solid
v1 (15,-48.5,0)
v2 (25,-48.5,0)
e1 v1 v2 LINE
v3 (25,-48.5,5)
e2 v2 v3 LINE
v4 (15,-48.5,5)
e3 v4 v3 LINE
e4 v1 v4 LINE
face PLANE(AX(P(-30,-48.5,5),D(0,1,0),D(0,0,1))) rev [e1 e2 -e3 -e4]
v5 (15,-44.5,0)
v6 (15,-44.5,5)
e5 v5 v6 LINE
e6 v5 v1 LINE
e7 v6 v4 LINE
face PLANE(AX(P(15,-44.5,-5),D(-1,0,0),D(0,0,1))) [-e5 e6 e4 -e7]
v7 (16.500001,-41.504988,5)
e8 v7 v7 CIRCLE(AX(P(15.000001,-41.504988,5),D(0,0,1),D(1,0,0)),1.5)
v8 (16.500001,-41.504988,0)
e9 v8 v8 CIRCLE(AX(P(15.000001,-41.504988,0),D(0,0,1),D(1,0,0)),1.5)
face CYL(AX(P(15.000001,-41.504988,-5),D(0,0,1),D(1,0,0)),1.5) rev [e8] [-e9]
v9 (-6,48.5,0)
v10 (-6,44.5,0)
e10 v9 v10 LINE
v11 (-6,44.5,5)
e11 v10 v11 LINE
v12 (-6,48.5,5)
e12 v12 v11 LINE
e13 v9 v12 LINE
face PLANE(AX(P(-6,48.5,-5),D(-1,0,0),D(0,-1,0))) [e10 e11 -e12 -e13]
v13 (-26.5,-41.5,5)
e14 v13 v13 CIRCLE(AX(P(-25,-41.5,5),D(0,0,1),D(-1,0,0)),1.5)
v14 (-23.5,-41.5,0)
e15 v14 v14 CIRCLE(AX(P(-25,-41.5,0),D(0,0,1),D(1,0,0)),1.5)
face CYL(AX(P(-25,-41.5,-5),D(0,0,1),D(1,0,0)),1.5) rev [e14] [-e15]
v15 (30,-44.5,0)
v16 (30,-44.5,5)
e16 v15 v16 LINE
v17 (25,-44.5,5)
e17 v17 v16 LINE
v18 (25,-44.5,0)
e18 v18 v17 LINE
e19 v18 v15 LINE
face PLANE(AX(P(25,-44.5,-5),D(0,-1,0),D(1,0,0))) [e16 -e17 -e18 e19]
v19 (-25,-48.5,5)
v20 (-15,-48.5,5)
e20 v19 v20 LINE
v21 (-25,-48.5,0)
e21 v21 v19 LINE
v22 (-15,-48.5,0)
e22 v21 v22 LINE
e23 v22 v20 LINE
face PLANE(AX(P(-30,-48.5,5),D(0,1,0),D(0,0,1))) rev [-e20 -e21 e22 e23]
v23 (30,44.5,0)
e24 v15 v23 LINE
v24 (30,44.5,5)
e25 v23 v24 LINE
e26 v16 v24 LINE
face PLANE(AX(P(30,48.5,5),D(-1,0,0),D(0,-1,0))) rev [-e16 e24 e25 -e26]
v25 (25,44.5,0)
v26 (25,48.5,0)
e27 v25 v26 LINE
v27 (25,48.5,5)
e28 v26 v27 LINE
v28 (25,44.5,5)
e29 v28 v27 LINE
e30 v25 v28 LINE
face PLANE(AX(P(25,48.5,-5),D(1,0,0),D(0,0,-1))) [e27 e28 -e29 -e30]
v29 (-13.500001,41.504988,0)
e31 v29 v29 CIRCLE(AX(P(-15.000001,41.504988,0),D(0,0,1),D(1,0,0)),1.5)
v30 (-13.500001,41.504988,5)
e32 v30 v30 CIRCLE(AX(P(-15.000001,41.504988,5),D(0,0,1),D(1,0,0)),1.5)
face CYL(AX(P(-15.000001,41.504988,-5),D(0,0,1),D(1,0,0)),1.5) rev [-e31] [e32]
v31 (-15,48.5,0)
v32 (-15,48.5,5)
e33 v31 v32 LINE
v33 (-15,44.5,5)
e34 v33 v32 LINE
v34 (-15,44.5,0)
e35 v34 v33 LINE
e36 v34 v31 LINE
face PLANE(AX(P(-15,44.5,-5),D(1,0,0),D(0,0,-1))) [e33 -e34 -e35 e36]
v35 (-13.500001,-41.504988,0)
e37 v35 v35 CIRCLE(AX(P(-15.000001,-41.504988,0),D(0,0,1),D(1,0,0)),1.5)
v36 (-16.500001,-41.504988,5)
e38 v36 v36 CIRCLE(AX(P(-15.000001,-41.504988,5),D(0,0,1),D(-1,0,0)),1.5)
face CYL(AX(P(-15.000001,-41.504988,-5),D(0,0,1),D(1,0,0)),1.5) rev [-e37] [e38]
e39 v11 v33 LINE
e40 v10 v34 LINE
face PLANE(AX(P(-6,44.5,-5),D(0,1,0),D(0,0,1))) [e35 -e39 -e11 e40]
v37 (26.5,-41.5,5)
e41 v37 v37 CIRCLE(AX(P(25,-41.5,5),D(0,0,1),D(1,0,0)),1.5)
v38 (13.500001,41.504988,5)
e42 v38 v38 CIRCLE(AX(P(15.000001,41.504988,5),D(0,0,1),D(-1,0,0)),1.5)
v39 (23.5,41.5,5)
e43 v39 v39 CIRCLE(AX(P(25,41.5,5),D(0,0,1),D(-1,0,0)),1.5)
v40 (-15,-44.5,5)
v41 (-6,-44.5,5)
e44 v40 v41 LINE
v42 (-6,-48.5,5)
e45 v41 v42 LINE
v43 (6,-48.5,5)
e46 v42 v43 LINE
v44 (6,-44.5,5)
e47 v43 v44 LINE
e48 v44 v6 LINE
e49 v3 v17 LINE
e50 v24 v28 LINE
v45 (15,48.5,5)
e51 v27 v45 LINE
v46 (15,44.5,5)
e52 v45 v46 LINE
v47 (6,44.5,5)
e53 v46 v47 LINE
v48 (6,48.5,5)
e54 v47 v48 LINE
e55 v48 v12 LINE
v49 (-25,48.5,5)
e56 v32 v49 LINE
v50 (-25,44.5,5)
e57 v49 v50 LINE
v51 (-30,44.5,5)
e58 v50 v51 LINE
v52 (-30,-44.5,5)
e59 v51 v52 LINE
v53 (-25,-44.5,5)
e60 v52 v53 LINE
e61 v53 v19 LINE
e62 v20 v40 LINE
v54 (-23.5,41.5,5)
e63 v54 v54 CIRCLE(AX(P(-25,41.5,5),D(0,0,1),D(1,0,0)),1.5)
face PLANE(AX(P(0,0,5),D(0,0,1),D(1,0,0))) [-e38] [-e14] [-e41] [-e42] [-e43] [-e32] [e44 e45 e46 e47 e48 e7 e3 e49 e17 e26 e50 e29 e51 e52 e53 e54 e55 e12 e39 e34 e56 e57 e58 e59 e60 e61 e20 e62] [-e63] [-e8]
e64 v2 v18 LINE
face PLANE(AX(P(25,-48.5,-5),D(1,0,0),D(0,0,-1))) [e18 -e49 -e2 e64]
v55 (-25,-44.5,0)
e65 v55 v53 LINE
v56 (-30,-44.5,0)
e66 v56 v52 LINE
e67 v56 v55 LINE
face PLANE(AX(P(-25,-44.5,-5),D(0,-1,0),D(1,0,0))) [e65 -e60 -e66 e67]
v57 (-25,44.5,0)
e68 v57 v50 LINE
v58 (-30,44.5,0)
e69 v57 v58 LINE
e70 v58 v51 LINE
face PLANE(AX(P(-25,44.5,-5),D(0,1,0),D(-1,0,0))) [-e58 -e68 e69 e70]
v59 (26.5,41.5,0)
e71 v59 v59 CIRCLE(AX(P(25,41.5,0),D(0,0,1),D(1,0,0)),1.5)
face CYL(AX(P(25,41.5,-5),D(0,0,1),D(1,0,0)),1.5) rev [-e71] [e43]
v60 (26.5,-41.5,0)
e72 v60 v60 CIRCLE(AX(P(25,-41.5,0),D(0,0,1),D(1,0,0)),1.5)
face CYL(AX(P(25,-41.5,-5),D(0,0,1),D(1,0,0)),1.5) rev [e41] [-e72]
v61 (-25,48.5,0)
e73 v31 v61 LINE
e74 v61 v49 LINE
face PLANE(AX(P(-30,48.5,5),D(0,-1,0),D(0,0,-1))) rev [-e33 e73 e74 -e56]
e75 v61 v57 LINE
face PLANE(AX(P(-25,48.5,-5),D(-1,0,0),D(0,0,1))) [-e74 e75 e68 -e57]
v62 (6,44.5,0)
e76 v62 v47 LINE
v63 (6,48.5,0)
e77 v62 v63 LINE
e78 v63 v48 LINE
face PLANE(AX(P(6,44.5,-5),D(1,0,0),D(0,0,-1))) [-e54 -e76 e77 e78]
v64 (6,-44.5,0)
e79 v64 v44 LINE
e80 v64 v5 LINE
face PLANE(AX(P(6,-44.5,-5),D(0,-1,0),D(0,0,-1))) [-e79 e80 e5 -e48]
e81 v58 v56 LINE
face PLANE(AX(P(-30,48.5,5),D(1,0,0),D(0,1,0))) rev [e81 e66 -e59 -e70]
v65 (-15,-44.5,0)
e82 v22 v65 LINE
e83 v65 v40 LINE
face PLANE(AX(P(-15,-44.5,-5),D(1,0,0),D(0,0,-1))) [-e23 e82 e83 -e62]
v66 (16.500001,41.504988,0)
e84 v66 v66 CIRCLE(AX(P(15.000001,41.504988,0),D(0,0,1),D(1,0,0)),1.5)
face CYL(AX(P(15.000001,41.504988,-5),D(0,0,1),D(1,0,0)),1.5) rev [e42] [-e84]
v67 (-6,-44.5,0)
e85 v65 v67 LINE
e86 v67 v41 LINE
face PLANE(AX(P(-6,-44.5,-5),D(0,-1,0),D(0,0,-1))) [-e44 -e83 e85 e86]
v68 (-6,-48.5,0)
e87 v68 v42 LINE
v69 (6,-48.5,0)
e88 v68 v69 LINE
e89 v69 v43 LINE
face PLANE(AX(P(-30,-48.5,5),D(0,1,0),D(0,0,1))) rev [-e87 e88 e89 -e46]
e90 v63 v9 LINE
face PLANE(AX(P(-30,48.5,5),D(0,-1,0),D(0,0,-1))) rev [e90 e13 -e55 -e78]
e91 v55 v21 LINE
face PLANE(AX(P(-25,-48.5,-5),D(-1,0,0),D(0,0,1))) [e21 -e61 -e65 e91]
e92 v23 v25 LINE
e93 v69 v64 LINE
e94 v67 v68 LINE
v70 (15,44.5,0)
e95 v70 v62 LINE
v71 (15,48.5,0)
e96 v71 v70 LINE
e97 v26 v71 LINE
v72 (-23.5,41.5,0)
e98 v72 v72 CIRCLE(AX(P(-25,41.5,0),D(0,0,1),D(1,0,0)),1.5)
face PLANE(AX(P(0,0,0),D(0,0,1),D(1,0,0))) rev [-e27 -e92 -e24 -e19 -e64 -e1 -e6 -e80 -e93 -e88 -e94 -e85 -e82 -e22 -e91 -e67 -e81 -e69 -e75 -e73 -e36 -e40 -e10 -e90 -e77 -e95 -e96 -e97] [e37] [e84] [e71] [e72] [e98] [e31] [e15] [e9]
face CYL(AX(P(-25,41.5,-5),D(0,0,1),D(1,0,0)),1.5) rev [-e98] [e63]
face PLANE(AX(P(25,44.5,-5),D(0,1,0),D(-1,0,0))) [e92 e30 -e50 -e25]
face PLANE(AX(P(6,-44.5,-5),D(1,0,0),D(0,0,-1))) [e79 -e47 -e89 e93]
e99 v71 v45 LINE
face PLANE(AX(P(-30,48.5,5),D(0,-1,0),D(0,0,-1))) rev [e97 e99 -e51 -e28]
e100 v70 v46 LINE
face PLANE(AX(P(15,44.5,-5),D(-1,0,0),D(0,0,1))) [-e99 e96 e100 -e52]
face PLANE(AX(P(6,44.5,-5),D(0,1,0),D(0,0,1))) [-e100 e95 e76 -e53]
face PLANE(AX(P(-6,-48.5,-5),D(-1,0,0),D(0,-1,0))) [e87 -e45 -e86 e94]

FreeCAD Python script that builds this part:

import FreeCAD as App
import Part
import Sketcher
from FreeCAD import Vector

doc = App.newDocument("Part")
params = doc.addObject("Spreadsheet::Sheet", "Params")
for row, (alias, value) in enumerate([
    ("sketch1_width", "60 mm"),
    ("sketch1_height", "97 mm"),
    ("pad1_length", "5 mm"),
    ("sketch2_width", "12 mm"),
    ("sketch2_width2", "9 mm"),
    ("sketch2_width3", "10 mm"),
    ("sketch2_width4", "5 mm"),
    ("sketch2_height", "4 mm"),
    ("pocket1_length", "10 mm"),
    ("sketch3_diameter", "3 mm"),
    ("pocket2_length", "10 mm"),
], start=1):
    params.set(f"A{row}", alias)
    params.set(f"B{row}", "=" + value)
    params.setAlias(f"B{row}", alias)

body = doc.addObject("PartDesign::Body", "Body")

sketch1 = body.newObject("Sketcher::SketchObject", "Sketch")
sketch1.AttachmentSupport = (doc.getObject("XY_Plane"), [""])
sketch1.MapMode = "FlatFace"
sketch1.addGeometry([
    Part.LineSegment(Vector(-30, 48.5, 0), Vector(-30, -48.5, 0)),
    Part.LineSegment(Vector(-30, -48.5, 0), Vector(30, -48.5, 0)),
    Part.LineSegment(Vector(30, -48.5, 0), Vector(30, 48.5, 0)),
    Part.LineSegment(Vector(30, 48.5, 0), Vector(-30, 48.5, 0)),
], False)
sketch1.addConstraint([
    Sketcher.Constraint("Coincident", 0, 2, 1, 1),
    Sketcher.Constraint("Coincident", 1, 2, 2, 1),
    Sketcher.Constraint("Coincident", 2, 2, 3, 1),
    Sketcher.Constraint("Coincident", 3, 2, 0, 1),
    Sketcher.Constraint("Vertical", 0),
    Sketcher.Constraint("Horizontal", 1),
    Sketcher.Constraint("Vertical", 2),
    Sketcher.Constraint("Horizontal", 3),
    Sketcher.Constraint("Symmetric", 0, 2, 2, 2, -1, 1),
    Sketcher.Constraint("DistanceX", 1, 1, 1, 2, 60.0),
    Sketcher.Constraint("DistanceY", 0, 2, 0, 1, 97.0),
])
sketch1.setExpression("Constraints[9]", "Params.sketch1_width")
sketch1.setExpression("Constraints[10]", "Params.sketch1_height")
pad1 = body.newObject("PartDesign::Pad", "Pad")
pad1.Profile = sketch1
pad1.setExpression("Length", "Params.pad1_length")

sketch2 = body.newObject("Sketcher::SketchObject", "Sketch001")
sketch2.AttachmentSupport = (doc.getObject("XY_Plane"), [""])
sketch2.MapMode = "FlatFace"
sketch2.AttachmentOffset = App.Placement(Vector(0, 0, 5), App.Rotation())
sketch2.addGeometry([
    Part.LineSegment(Vector(-42.417, 60.917, 0), Vector(-42.417, -60.917, 0)),
    Part.LineSegment(Vector(-42.417, -60.917, 0), Vector(42.417, -60.917, 0)),
    Part.LineSegment(Vector(42.417, -60.917, 0), Vector(42.417, 60.917, 0)),
    Part.LineSegment(Vector(42.417, 60.917, 0), Vector(-42.417, 60.917, 0)),
    Part.LineSegment(Vector(-6, 48.5, 0), Vector(6, 48.5, 0)),
    Part.LineSegment(Vector(6, 48.5, 0), Vector(6, 44.5, 0)),
    Part.LineSegment(Vector(6, 44.5, 0), Vector(15, 44.5, 0)),
    Part.LineSegment(Vector(15, 44.5, 0), Vector(15, 48.5, 0)),
    Part.LineSegment(Vector(15, 48.5, 0), Vector(25, 48.5, 0)),
    Part.LineSegment(Vector(25, 48.5, 0), Vector(25, 44.5, 0)),
    Part.LineSegment(Vector(25, 44.5, 0), Vector(30, 44.5, 0)),
    Part.LineSegment(Vector(30, 44.5, 0), Vector(30, -44.5, 0)),
    Part.LineSegment(Vector(30, -44.5, 0), Vector(25, -44.5, 0)),
    Part.LineSegment(Vector(25, -44.5, 0), Vector(25, -48.5, 0)),
    Part.LineSegment(Vector(25, -48.5, 0), Vector(15, -48.5, 0)),
    Part.LineSegment(Vector(15, -48.5, 0), Vector(15, -44.5, 0)),
    Part.LineSegment(Vector(15, -44.5, 0), Vector(6, -44.5, 0)),
    Part.LineSegment(Vector(6, -44.5, 0), Vector(6, -48.5, 0)),
    Part.LineSegment(Vector(6, -48.5, 0), Vector(-6, -48.5, 0)),
    Part.LineSegment(Vector(-6, -48.5, 0), Vector(-6, -44.5, 0)),
    Part.LineSegment(Vector(-6, -44.5, 0), Vector(-15, -44.5, 0)),
    Part.LineSegment(Vector(-15, -44.5, 0), Vector(-15, -48.5, 0)),
    Part.LineSegment(Vector(-15, -48.5, 0), Vector(-25, -48.5, 0)),
    Part.LineSegment(Vector(-25, -48.5, 0), Vector(-25, -44.5, 0)),
    Part.LineSegment(Vector(-25, -44.5, 0), Vector(-30, -44.5, 0)),
    Part.LineSegment(Vector(-30, -44.5, 0), Vector(-30, 44.5, 0)),
    Part.LineSegment(Vector(-30, 44.5, 0), Vector(-25, 44.5, 0)),
    Part.LineSegment(Vector(-25, 44.5, 0), Vector(-25, 48.5, 0)),
    Part.LineSegment(Vector(-25, 48.5, 0), Vector(-15, 48.5, 0)),
    Part.LineSegment(Vector(-15, 48.5, 0), Vector(-15, 44.5, 0)),
    Part.LineSegment(Vector(-15, 44.5, 0), Vector(-6, 44.5, 0)),
    Part.LineSegment(Vector(-6, 44.5, 0), Vector(-6, 48.5, 0)),
], False)
sketch2.addConstraint([
    Sketcher.Constraint("Coincident", 0, 2, 1, 1),
    Sketcher.Constraint("Coincident", 1, 2, 2, 1),
    Sketcher.Constraint("Coincident", 2, 2, 3, 1),
    Sketcher.Constraint("Coincident", 3, 2, 0, 1),
    Sketcher.Constraint("Coincident", 4, 2, 5, 1),
    Sketcher.Constraint("Coincident", 5, 2, 6, 1),
    Sketcher.Constraint("Coincident", 6, 2, 7, 1),
    Sketcher.Constraint("Coincident", 7, 2, 8, 1),
    Sketcher.Constraint("Coincident", 8, 2, 9, 1),
    Sketcher.Constraint("Coincident", 9, 2, 10, 1),
    Sketcher.Constraint("Coincident", 10, 2, 11, 1),
    Sketcher.Constraint("Coincident", 11, 2, 12, 1),
    Sketcher.Constraint("Coincident", 12, 2, 13, 1),
    Sketcher.Constraint("Coincident", 13, 2, 14, 1),
    Sketcher.Constraint("Coincident", 14, 2, 15, 1),
    Sketcher.Constraint("Coincident", 15, 2, 16, 1),
    Sketcher.Constraint("Coincident", 16, 2, 17, 1),
    Sketcher.Constraint("Coincident", 17, 2, 18, 1),
    Sketcher.Constraint("Coincident", 18, 2, 19, 1),
    Sketcher.Constraint("Coincident", 19, 2, 20, 1),
    Sketcher.Constraint("Coincident", 20, 2, 21, 1),
    Sketcher.Constraint("Coincident", 21, 2, 22, 1),
    Sketcher.Constraint("Coincident", 22, 2, 23, 1),
    Sketcher.Constraint("Coincident", 23, 2, 24, 1),
    Sketcher.Constraint("Coincident", 24, 2, 25, 1),
    Sketcher.Constraint("Coincident", 25, 2, 26, 1),
    Sketcher.Constraint("Coincident", 26, 2, 27, 1),
    Sketcher.Constraint("Coincident", 27, 2, 28, 1),
    Sketcher.Constraint("Coincident", 28, 2, 29, 1),
    Sketcher.Constraint("Coincident", 29, 2, 30, 1),
    Sketcher.Constraint("Coincident", 30, 2, 31, 1),
    Sketcher.Constraint("Coincident", 31, 2, 4, 1),
    Sketcher.Constraint("Vertical", 0),
    Sketcher.Constraint("Horizontal", 1),
    Sketcher.Constraint("Vertical", 2),
    Sketcher.Constraint("Horizontal", 3),
    Sketcher.Constraint("Horizontal", 4),
    Sketcher.Constraint("Vertical", 5),
    Sketcher.Constraint("Horizontal", 6),
    Sketcher.Constraint("Vertical", 7),
    Sketcher.Constraint("Horizontal", 8),
    Sketcher.Constraint("Vertical", 9),
    Sketcher.Constraint("Horizontal", 10),
    Sketcher.Constraint("Vertical", 11),
    Sketcher.Constraint("Horizontal", 12),
    Sketcher.Constraint("Vertical", 13),
    Sketcher.Constraint("Horizontal", 14),
    Sketcher.Constraint("Vertical", 15),
    Sketcher.Constraint("Horizontal", 16),
    Sketcher.Constraint("Vertical", 17),
    Sketcher.Constraint("Horizontal", 18),
    Sketcher.Constraint("Vertical", 19),
    Sketcher.Constraint("Horizontal", 20),
    Sketcher.Constraint("Vertical", 21),
    Sketcher.Constraint("Horizontal", 22),
    Sketcher.Constraint("Vertical", 23),
    Sketcher.Constraint("Horizontal", 24),
    Sketcher.Constraint("Vertical", 25),
    Sketcher.Constraint("Horizontal", 26),
    Sketcher.Constraint("Vertical", 27),
    Sketcher.Constraint("Horizontal", 28),
    Sketcher.Constraint("Vertical", 29),
    Sketcher.Constraint("Horizontal", 30),
    Sketcher.Constraint("Vertical", 31),
    Sketcher.Constraint("Symmetric", 0, 2, 2, 2, -1, 1),
    Sketcher.Constraint("Symmetric", 4, 2, 18, 2, -1, 1),
    Sketcher.Constraint("Symmetric", 6, 2, 20, 2, -1, 1),
    Sketcher.Constraint("Symmetric", 8, 2, 22, 2, -1, 1),
    Sketcher.Constraint("Symmetric", 10, 2, 24, 2, -1, 1),
    Sketcher.Constraint("Symmetric", 12, 2, 26, 2, -1, 1),
    Sketcher.Constraint("Symmetric", 14, 2, 28, 2, -1, 1),
    Sketcher.Constraint("Symmetric", 16, 2, 30, 2, -1, 1),
    Sketcher.Constraint("Symmetric", 16, 2, 19, 2, -2),
    Sketcher.Constraint("Symmetric", 14, 2, 21, 2, -2),
    Sketcher.Constraint("Symmetric", 12, 2, 23, 2, -2),
    Sketcher.Constraint("Horizontal", 4, 2, 7, 2),
    Sketcher.Constraint("Horizontal", 6, 2, 9, 2),
    Sketcher.Constraint("DistanceX", 4, 1, 4, 2, 12.0),
    Sketcher.Constraint("DistanceX", 6, 1, 6, 2, 9.0),
    Sketcher.Constraint("DistanceX", 8, 1, 8, 2, 10.0),
    Sketcher.Constraint("DistanceX", 10, 1, 10, 2, 5.0),
    Sketcher.Constraint("DistanceY", 5, 2, 5, 1, 4.0),
    Sketcher.Constraint("DistanceY", 11, 2, 11, 1, 89.0),
    Sketcher.Constraint("DistanceX", 1, 1, 1, 2, 84.834),
    Sketcher.Constraint("DistanceY", 0, 2, 0, 1, 121.834),
])
sketch2.setExpression("Constraints[77]", "Params.sketch2_width")
sketch2.setExpression("Constraints[78]", "Params.sketch2_width2")
sketch2.setExpression("Constraints[79]", "Params.sketch2_width3")
sketch2.setExpression("Constraints[80]", "Params.sketch2_width4")
sketch2.setExpression("Constraints[81]", "Params.sketch2_height")
pocket1 = body.newObject("PartDesign::Pocket", "Pocket")
pocket1.Profile = sketch2
pocket1.setExpression("Length", "Params.pocket1_length")

sketch3 = body.newObject("Sketcher::SketchObject", "Sketch002")
sketch3.AttachmentSupport = (doc.getObject("XY_Plane"), [""])
sketch3.MapMode = "FlatFace"
sketch3.AttachmentOffset = App.Placement(Vector(0, 0, 5), App.Rotation())
sketch3.addGeometry([
    Part.Circle(Vector(-25, 41.5, 0), Vector(0, 0, 1), 1.5),
    Part.Circle(Vector(-15.000001, 41.504988, 0), Vector(0, 0, 1), 1.5),
    Part.Circle(Vector(15.000001, 41.504988, 0), Vector(0, 0, 1), 1.5),
    Part.Circle(Vector(25, 41.5, 0), Vector(0, 0, 1), 1.5),
    Part.Circle(Vector(25, -41.5, 0), Vector(0, 0, 1), 1.5),
    Part.Circle(Vector(15.000001, -41.504988, 0), Vector(0, 0, 1), 1.5),
    Part.Circle(Vector(-15.000001, -41.504988, 0), Vector(0, 0, 1), 1.5),
    Part.Circle(Vector(-25, -41.5, 0), Vector(0, 0, 1), 1.5),
], False)
sketch3.addConstraint([
    Sketcher.Constraint("Equal", 0, 1),
    Sketcher.Constraint("Equal", 1, 2),
    Sketcher.Constraint("Equal", 2, 3),
    Sketcher.Constraint("Equal", 3, 4),
    Sketcher.Constraint("Equal", 4, 5),
    Sketcher.Constraint("Equal", 5, 6),
    Sketcher.Constraint("Equal", 6, 7),
    Sketcher.Constraint("Symmetric", 0, 3, 4, 3, -1, 1),
    Sketcher.Constraint("Symmetric", 1, 3, 5, 3, -1, 1),
    Sketcher.Constraint("Symmetric", 2, 3, 6, 3, -1, 1),
    Sketcher.Constraint("Symmetric", 3, 3, 7, 3, -1, 1),
    Sketcher.Constraint("Symmetric", 1, 3, 2, 3, -2),
    Sketcher.Constraint("Symmetric", 0, 3, 3, 3, -2),
    Sketcher.Constraint("Diameter", 0, 3.0),
    Sketcher.Constraint("DistanceX", 0, 3, -1, 1, 25.0),
    Sketcher.Constraint("DistanceX", 1, 3, -1, 1, 15.000001),
    Sketcher.Constraint("DistanceY", 4, 3, 3, 3, 83.0),
    Sketcher.Constraint("DistanceY", -1, 1, 1, 3, 41.504988),
])
sketch3.setExpression("Constraints[13]", "Params.sketch3_diameter")
pocket2 = body.newObject("PartDesign::Pocket", "Pocket001")
pocket2.Profile = sketch3
pocket2.setExpression("Length", "Params.pocket2_length")

doc.recompute()
